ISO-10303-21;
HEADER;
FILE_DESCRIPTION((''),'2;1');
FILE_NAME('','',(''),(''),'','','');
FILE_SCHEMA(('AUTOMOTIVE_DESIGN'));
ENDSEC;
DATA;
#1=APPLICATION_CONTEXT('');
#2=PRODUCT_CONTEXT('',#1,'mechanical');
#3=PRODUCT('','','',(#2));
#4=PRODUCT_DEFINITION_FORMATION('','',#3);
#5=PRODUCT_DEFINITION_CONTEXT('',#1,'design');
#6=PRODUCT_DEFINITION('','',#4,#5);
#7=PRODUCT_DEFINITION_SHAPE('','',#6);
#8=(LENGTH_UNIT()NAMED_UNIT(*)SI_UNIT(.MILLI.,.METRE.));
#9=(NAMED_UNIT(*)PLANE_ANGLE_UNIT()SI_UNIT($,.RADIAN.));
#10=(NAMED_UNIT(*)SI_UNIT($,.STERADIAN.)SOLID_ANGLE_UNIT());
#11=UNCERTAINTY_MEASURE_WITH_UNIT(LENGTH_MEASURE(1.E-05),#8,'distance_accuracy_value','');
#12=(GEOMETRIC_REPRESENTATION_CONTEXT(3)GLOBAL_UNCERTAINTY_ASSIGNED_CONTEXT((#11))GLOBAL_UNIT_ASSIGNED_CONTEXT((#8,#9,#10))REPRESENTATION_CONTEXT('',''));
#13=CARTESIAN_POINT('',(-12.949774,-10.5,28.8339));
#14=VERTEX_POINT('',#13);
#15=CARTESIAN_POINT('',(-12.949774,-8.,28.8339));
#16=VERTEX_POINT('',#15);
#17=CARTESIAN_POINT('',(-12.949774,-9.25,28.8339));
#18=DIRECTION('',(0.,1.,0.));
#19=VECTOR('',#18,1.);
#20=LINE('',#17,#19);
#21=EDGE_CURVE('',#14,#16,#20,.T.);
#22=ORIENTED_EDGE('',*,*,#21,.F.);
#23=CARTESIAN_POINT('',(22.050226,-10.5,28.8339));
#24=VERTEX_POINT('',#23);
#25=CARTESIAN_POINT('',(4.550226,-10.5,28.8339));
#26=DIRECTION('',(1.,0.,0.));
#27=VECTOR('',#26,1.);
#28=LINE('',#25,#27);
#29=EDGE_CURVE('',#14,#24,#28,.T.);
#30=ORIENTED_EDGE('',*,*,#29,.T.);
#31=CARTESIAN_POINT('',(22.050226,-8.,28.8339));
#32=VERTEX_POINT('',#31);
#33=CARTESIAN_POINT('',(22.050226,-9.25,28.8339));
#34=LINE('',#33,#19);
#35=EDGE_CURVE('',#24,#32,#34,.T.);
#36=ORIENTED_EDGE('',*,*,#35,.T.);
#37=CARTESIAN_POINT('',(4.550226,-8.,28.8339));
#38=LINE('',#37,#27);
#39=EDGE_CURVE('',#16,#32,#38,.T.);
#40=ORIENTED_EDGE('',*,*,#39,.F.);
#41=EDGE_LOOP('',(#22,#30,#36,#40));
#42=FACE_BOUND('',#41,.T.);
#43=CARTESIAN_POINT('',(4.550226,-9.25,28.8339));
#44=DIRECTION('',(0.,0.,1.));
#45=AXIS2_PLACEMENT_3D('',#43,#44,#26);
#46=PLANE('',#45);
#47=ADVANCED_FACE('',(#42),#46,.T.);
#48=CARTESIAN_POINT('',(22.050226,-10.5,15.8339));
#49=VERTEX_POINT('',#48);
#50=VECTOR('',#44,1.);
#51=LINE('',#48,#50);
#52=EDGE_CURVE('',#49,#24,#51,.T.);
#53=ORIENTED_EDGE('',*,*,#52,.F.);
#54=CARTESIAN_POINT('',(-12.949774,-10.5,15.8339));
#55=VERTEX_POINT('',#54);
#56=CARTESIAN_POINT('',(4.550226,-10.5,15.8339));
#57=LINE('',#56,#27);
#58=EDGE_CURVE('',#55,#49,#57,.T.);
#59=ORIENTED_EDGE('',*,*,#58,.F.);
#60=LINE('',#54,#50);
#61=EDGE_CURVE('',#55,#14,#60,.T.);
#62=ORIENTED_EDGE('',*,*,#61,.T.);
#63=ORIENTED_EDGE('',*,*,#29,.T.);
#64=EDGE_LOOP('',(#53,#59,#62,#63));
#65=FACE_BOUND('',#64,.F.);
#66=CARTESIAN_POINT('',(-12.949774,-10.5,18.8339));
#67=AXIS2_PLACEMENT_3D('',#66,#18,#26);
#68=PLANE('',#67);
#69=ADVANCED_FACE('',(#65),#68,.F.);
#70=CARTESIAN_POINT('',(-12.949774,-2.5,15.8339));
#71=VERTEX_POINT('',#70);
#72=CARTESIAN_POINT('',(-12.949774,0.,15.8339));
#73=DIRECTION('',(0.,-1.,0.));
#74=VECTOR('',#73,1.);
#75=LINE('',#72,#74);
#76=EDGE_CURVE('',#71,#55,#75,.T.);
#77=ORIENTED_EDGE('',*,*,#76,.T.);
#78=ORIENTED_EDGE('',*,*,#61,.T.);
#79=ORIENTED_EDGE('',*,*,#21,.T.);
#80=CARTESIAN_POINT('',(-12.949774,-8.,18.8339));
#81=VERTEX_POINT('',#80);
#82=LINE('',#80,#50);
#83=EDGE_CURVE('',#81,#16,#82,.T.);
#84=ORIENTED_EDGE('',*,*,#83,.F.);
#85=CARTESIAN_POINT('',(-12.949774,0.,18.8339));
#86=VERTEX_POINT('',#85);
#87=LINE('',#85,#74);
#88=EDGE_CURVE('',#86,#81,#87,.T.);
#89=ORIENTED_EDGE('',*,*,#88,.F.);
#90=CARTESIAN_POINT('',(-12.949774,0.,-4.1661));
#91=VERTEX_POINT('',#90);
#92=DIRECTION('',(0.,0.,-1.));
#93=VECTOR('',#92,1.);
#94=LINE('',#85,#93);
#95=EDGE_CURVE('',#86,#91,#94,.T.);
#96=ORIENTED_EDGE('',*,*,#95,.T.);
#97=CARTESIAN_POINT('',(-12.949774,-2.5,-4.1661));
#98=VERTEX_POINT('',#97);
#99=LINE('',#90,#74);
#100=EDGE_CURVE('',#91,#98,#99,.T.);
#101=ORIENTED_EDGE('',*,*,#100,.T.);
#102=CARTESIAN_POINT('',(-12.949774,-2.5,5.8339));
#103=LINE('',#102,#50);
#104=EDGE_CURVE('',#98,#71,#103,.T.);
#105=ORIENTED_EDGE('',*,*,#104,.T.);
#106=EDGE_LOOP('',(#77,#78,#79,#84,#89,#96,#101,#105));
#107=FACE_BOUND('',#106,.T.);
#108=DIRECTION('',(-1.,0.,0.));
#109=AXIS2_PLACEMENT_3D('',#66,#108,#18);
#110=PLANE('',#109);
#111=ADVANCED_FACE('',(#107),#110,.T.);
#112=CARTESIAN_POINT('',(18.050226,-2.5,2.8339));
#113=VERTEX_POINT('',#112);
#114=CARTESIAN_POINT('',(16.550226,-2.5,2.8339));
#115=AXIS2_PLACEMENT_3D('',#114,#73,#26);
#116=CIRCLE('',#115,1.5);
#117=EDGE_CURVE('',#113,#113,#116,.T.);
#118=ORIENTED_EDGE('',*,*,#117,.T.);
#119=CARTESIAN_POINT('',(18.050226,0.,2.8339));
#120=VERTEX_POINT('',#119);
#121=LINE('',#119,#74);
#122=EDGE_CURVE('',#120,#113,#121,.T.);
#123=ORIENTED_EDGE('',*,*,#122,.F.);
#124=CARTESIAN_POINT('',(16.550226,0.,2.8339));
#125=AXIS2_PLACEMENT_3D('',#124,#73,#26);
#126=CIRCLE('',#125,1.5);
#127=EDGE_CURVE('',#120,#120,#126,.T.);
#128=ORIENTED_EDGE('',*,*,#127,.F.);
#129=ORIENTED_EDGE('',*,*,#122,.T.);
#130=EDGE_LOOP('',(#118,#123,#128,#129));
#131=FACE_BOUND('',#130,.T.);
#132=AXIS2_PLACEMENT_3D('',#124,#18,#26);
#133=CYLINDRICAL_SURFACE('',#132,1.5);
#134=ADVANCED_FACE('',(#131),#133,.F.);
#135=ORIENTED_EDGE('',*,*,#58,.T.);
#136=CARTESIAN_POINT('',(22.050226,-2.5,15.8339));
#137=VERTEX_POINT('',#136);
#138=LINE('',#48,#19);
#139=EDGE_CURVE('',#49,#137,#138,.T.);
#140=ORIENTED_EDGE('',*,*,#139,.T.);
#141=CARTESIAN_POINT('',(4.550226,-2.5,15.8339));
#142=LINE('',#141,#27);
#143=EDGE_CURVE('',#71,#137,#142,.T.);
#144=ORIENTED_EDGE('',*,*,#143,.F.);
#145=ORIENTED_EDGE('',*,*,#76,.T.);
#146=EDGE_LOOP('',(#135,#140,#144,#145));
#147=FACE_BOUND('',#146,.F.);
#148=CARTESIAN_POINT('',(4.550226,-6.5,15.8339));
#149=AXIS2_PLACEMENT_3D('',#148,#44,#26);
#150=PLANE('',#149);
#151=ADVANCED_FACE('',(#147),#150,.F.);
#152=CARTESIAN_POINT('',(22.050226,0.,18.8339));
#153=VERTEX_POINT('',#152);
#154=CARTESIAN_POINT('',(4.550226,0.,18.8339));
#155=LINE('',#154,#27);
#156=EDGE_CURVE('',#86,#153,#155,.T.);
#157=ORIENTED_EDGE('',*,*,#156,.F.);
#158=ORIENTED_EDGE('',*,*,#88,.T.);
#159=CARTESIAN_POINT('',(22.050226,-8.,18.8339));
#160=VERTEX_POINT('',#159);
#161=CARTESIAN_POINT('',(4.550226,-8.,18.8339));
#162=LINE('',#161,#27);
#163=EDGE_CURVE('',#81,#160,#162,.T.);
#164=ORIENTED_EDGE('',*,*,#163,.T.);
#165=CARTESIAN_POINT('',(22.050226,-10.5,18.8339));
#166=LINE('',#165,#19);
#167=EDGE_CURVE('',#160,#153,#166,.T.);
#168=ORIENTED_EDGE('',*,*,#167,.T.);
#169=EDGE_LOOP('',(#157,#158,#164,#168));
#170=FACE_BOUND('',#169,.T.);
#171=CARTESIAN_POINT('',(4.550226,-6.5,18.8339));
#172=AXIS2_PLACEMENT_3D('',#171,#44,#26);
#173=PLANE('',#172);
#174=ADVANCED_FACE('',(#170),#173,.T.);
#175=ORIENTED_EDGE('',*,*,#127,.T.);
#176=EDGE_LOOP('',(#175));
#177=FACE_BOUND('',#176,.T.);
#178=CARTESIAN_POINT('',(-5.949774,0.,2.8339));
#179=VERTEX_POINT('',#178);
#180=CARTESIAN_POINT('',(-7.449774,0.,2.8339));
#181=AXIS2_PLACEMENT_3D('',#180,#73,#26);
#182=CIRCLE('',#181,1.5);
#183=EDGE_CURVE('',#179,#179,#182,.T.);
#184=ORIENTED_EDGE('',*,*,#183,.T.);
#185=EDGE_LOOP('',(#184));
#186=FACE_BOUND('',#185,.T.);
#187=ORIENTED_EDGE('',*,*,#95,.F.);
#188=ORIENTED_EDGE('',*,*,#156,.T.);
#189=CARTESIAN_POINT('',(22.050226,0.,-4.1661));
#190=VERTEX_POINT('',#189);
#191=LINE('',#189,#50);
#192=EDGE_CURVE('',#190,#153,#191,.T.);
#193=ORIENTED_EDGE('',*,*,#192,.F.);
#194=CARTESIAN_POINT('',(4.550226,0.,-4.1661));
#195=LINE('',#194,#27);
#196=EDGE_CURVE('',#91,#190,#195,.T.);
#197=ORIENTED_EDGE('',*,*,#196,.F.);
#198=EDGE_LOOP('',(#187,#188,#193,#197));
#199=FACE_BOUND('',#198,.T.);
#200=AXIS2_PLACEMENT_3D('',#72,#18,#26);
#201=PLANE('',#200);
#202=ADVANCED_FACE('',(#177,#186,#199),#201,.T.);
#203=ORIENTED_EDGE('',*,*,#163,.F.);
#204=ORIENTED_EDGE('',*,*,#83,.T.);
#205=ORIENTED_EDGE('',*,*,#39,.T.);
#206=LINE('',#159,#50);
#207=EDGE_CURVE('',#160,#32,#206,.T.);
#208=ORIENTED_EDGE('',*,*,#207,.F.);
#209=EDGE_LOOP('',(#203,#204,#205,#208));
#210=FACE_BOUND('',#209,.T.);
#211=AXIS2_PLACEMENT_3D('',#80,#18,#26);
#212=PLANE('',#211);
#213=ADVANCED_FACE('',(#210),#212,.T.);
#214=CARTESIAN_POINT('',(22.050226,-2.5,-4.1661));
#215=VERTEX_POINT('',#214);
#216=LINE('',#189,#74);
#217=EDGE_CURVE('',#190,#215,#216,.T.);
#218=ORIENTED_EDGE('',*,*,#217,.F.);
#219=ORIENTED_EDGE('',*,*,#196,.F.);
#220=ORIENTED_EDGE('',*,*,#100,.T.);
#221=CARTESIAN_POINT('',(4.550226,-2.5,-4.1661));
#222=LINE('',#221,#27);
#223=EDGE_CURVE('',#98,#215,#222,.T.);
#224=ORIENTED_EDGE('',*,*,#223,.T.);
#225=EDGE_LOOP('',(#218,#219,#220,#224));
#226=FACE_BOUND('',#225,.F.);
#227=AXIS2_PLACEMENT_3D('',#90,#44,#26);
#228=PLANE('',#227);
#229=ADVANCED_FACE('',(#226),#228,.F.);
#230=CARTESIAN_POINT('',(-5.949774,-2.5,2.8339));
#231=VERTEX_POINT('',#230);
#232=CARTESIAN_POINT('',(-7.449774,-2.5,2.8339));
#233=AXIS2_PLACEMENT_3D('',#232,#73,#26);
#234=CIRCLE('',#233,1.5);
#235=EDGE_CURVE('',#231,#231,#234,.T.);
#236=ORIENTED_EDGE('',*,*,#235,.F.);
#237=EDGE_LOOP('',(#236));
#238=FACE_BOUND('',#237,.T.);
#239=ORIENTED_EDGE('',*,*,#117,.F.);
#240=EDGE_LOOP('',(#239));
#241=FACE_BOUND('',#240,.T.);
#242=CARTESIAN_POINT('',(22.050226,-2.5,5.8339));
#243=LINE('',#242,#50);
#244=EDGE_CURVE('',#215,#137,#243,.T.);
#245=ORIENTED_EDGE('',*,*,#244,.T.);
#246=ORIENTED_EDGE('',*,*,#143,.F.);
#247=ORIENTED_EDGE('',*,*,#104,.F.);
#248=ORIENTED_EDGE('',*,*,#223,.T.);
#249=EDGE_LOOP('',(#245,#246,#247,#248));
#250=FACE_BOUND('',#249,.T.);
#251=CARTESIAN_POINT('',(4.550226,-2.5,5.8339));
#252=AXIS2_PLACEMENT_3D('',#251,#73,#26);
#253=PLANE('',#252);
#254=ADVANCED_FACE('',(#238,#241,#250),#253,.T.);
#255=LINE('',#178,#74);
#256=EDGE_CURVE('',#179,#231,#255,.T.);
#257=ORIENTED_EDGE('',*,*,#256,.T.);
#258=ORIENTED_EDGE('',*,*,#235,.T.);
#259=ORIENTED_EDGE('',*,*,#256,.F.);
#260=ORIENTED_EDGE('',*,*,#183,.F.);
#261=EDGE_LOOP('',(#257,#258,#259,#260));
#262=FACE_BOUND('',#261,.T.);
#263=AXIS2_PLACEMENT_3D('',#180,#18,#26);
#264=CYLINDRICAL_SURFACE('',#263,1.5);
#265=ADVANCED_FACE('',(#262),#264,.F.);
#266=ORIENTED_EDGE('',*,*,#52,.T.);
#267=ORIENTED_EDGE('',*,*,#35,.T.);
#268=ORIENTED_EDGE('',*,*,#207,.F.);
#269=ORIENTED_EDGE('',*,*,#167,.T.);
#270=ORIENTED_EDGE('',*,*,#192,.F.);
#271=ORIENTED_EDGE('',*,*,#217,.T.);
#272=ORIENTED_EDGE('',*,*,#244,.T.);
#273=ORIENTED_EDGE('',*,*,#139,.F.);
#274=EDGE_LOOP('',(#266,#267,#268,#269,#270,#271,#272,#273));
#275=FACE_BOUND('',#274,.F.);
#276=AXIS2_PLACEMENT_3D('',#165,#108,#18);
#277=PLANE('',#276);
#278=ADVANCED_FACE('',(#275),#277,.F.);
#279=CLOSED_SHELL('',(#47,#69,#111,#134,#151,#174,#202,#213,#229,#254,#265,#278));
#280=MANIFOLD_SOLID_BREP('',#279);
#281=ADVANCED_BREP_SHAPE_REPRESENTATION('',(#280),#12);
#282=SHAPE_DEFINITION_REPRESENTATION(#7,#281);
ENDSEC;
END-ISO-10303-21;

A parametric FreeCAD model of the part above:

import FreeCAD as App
import Part
import Sketcher

V = App.Vector
Q = App.Units.Quantity


def add_polygon(sketch, points):
    """Adds a closed chain of lines whose ends are joined by coincident constraints."""
    first, n = sketch.GeometryCount, len(points)
    for a, b in zip(points, points[1:] + points[:1]):
        sketch.addGeometry(Part.LineSegment(App.Vector(*a, 0), App.Vector(*b, 0)), False)
    for i in range(n):
        sketch.addConstraint(Sketcher.Constraint("Coincident", first + i, 2, first + (i + 1) % n, 1))

doc = App.newDocument("Part")
params = doc.addObject("Spreadsheet::Sheet", "Params")
for row, (alias, value) in enumerate([
    ("sketch1_diameter", "3 mm"),
    ("sketch1_width", "35 mm"),
    ("sketch1_height", "20 mm"),
    ("pad1_length", "2.5 mm"),
    ("sketch2_width", "35 mm"),
    ("sketch2_height", "10.5 mm"),
    ("pad2_length", "3 mm"),
    ("sketch3_width", "35 mm"),
    ("sketch3_height", "2.5 mm"),
    ("pad3_length", "10 mm"),
], start=1):
    params.set(f"A{row}", alias)
    params.set(f"B{row}", "=" + value)
    params.setAlias(f"B{row}", alias)

body = doc.addObject("PartDesign::Body", "Body")

# Sketch on XZ plane
sketch1 = body.newObject("Sketcher::SketchObject", "Sketch")
sketch1.AttachmentSupport = (doc.getObject("XZ_Plane"), [""])
sketch1.MapMode = "FlatFace"
add_polygon(sketch1, [(-12.949774, 15.8339), (-12.949774, -4.1661), (22.050226, -4.1661), (22.050226, 15.8339)])  # lines 0-3
sketch1.addGeometry(Part.Circle(V(-7.449774, 2.8339, 0), V(0, 0, 1), 1.5), False)  # 4
sketch1.addGeometry(Part.Circle(V(16.550226, 2.8339, 0), V(0, 0, 1), 1.5), False)  # 5
sketch1.addConstraint([
    Sketcher.Constraint("Vertical", 0),
    Sketcher.Constraint("Horizontal", 1),
    Sketcher.Constraint("Vertical", 2),
    Sketcher.Constraint("Horizontal", 3),
    Sketcher.Constraint("Equal", 4, 5),
    Sketcher.Constraint("Horizontal", 4, 3, 5, 3),
    Sketcher.Constraint("Diameter", 4, Q("3 mm")),
    Sketcher.Constraint("DistanceX", 1, 1, 1, 2, Q("35 mm")),
    Sketcher.Constraint("DistanceY", 0, 2, 0, 1, Q("20 mm")),
    Sketcher.Constraint("DistanceX", 4, 3, 5, 3, Q("24 mm")),
    Sketcher.Constraint("DistanceY", 0, 2, 4, 3, Q("7 mm")),
    Sketcher.Constraint("DistanceX", 0, 2, 4, 3, Q("5.5 mm")),
    Sketcher.Constraint("DistanceY", -1, 1, 4, 3, Q("2.8339 mm")),
    Sketcher.Constraint("DistanceX", 4, 3, -1, 1, Q("7.449774 mm")),
])
sketch1.setExpression("Constraints[10]", "Params.sketch1_diameter")
sketch1.setExpression("Constraints[11]", "Params.sketch1_width")
sketch1.setExpression("Constraints[12]", "Params.sketch1_height")
pad1 = body.newObject("PartDesign::Pad", "Pad")
pad1.Profile = sketch1
pad1.setExpression("Length", "Params.pad1_length")

# Sketch on XY plane
sketch2 = body.newObject("Sketcher::SketchObject", "Sketch001")
sketch2.AttachmentSupport = (doc.getObject("XY_Plane"), [""])
sketch2.MapMode = "FlatFace"
sketch2.AttachmentOffset = App.Placement(V(0, 0, 15.8339), App.Rotation())
add_polygon(sketch2, [(-12.949774, -10.5), (22.050226, -10.5), (22.050226, 0), (-12.949774, 0)])  # lines 0-3
sketch2.addConstraint([
    Sketcher.Constraint("Horizontal", 0),
    Sketcher.Constraint("Vertical", 1),
    Sketcher.Constraint("Horizontal", 2),
    Sketcher.Constraint("Vertical", 3),
    Sketcher.Constraint("PointOnObject", 1, 2, -1),
    Sketcher.Constraint("DistanceX", 0, 1, 0, 2, Q("35 mm")),
    Sketcher.Constraint("DistanceY", 1, 1, 1, 2, Q("10.5 mm")),
    Sketcher.Constraint("DistanceX", -1, 1, 0, 2, Q("22.050226 mm")),
])
sketch2.setExpression("Constraints[9]", "Params.sketch2_width")
sketch2.setExpression("Constraints[10]", "Params.sketch2_height")
pad2 = body.newObject("PartDesign::Pad", "Pad001")
pad2.Profile = sketch2
pad2.setExpression("Length", "Params.pad2_length")

# Sketch on XY plane
sketch3 = body.newObject("Sketcher::SketchObject", "Sketch002")
sketch3.AttachmentSupport = (doc.getObject("XY_Plane"), [""])
sketch3.MapMode = "FlatFace"
sketch3.AttachmentOffset = App.Placement(V(0, 0, 18.8339), App.Rotation())
add_polygon(sketch3, [(-12.949774, -8), (-12.949774, -10.5), (22.050226, -10.5), (22.050226, -8)])  # lines 0-3
sketch3.addConstraint([
    Sketcher.Constraint("Vertical", 0),
    Sketcher.Constraint("Horizontal", 1),
    Sketcher.Constraint("Vertical", 2),
    Sketcher.Constraint("Horizontal", 3),
    Sketcher.Constraint("DistanceX", 1, 1, 1, 2, Q("35 mm")),
    Sketcher.Constraint("DistanceY", 0, 2, 0, 1, Q("2.5 mm")),
    Sketcher.Constraint("DistanceY", 2, 2, -1, 1, Q("8 mm")),
    Sketcher.Constraint("DistanceX", 0, 2, -1, 1, Q("12.949774 mm")),
])
sketch3.setExpression("Constraints[8]", "Params.sketch3_width")
sketch3.setExpression("Constraints[9]", "Params.sketch3_height")
pad3 = body.newObject("PartDesign::Pad", "Pad002")
pad3.Profile = sketch3
pad3.setExpression("Length", "Params.pad3_length")

doc.recompute()
